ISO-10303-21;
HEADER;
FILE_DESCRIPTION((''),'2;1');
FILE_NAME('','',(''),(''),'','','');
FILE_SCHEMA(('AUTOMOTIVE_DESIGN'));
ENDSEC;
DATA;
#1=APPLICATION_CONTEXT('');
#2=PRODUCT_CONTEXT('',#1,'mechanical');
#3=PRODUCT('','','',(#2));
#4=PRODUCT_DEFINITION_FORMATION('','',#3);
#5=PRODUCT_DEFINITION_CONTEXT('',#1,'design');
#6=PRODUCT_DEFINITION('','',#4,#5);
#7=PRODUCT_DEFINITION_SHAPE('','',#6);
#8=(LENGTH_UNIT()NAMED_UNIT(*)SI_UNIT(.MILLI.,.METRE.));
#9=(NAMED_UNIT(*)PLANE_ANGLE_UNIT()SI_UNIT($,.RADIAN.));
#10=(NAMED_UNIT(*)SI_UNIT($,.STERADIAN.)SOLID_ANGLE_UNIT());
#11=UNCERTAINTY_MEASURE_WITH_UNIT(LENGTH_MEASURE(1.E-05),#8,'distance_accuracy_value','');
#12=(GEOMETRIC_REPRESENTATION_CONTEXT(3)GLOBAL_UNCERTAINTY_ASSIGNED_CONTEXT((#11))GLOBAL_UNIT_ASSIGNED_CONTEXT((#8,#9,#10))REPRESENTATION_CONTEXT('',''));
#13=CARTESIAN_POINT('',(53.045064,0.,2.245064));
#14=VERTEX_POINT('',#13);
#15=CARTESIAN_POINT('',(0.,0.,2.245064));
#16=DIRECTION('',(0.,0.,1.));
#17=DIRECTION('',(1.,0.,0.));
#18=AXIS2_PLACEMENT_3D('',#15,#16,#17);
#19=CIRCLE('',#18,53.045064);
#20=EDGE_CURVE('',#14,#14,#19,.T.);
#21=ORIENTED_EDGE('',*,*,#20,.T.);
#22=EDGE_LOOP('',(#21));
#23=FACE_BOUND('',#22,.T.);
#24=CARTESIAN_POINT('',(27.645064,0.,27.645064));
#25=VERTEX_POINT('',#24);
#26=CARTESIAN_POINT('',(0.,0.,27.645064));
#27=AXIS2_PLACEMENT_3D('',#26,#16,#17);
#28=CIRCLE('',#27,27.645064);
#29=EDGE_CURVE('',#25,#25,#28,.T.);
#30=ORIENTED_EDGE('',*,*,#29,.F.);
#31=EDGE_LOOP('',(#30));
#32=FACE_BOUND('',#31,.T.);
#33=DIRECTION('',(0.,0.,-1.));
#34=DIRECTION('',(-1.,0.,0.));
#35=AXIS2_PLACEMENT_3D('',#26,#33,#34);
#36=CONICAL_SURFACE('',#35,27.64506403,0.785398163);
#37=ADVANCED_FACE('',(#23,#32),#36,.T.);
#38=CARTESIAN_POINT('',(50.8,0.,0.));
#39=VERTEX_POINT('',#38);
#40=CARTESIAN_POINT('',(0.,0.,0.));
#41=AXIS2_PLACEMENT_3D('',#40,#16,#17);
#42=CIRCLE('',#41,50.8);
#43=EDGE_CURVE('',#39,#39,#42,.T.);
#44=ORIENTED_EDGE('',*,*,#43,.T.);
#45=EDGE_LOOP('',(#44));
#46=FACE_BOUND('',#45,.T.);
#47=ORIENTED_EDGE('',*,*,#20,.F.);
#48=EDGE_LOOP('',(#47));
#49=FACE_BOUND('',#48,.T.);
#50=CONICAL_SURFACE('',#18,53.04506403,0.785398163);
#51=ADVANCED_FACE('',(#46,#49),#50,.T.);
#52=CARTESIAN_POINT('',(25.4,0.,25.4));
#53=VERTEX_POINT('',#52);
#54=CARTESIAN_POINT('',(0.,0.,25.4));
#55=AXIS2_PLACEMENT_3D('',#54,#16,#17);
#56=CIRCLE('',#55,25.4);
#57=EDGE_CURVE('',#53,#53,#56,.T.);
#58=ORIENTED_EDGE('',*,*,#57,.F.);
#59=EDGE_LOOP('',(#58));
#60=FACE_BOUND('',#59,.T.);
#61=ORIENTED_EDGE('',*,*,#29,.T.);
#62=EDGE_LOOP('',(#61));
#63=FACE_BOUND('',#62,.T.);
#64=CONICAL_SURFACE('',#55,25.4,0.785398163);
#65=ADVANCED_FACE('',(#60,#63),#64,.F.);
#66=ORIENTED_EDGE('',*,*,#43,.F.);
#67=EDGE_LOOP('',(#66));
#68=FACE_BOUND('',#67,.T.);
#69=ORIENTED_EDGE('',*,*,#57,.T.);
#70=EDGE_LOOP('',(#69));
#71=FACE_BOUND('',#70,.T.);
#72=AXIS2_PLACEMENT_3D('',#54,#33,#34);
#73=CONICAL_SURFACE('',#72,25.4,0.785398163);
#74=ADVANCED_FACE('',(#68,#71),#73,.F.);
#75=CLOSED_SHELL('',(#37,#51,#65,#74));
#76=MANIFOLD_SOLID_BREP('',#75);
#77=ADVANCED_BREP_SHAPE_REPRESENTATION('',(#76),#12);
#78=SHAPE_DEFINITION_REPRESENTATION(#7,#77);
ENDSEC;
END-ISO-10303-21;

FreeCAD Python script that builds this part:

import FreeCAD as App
import Part
import Sketcher
from FreeCAD import Vector
Q = App.Units.Quantity

doc = App.newDocument("Part")
params = doc.addObject("Spreadsheet::Sheet", "Params")
for row, (alias, value) in enumerate([
    ("sketch1_length", "0.125 in"),
    ("revolution_angle", "360 deg"),
], start=1):
    params.set(f"A{row}", alias)
    params.set(f"B{row}", "=" + value)
    params.setAlias(f"B{row}", alias)

body = doc.addObject("PartDesign::Body", "Body")

# Sketch on YZ plane
sketch1 = body.newObject("Sketcher::SketchObject", "Sketch")
sketch1.AttachmentSupport = (doc.getObject("YZ_Plane"), [""])
sketch1.MapMode = "FlatFace"
sketch1.addGeometry([
    Part.LineSegment(Vector(25.4, 25.4, 0), Vector(50.8, 0, 0)),
    Part.LineSegment(Vector(50.8, 0, 0), Vector(53, 2.2, 0)),
    Part.LineSegment(Vector(53, 2.2, 0), Vector(27.6, 27.6, 0)),
    Part.LineSegment(Vector(27.6, 27.6, 0), Vector(25.4, 25.4, 0)),
], False)
sketch1.addConstraint([
    Sketcher.Constraint("Coincident", 0, 2, 1, 1),
    Sketcher.Constraint("Coincident", 1, 2, 2, 1),
    Sketcher.Constraint("Coincident", 2, 2, 3, 1),
    Sketcher.Constraint("Coincident", 3, 2, 0, 1),
    Sketcher.Constraint("PointOnObject", 0, 2, -1),
    Sketcher.Constraint("Perpendicular", 0, 1),
    Sketcher.Constraint("Perpendicular", 1, 2),
    Sketcher.Constraint("Perpendicular", 2, 3),
    Sketcher.Constraint("DistanceX", -1, 1, 0, 2, Q("2 in")),
    Sketcher.Constraint("DistanceX", -1, 1, 3, 2, Q("1 in")),
    Sketcher.Constraint("DistanceY", -1, 1, 3, 2, Q("1 in")),
    Sketcher.Constraint("Distance", 1, Q("0.125 in")),
])
sketch1.setExpression("Constraints[11]", "Params.sketch1_length")
revolution = body.newObject("PartDesign::Revolution", "Revolution")
revolution.Profile = sketch1
revolution.ReferenceAxis = (sketch1, ["V_Axis"])
revolution.setExpression("Angle", "Params.revolution_angle")

doc.recompute()
